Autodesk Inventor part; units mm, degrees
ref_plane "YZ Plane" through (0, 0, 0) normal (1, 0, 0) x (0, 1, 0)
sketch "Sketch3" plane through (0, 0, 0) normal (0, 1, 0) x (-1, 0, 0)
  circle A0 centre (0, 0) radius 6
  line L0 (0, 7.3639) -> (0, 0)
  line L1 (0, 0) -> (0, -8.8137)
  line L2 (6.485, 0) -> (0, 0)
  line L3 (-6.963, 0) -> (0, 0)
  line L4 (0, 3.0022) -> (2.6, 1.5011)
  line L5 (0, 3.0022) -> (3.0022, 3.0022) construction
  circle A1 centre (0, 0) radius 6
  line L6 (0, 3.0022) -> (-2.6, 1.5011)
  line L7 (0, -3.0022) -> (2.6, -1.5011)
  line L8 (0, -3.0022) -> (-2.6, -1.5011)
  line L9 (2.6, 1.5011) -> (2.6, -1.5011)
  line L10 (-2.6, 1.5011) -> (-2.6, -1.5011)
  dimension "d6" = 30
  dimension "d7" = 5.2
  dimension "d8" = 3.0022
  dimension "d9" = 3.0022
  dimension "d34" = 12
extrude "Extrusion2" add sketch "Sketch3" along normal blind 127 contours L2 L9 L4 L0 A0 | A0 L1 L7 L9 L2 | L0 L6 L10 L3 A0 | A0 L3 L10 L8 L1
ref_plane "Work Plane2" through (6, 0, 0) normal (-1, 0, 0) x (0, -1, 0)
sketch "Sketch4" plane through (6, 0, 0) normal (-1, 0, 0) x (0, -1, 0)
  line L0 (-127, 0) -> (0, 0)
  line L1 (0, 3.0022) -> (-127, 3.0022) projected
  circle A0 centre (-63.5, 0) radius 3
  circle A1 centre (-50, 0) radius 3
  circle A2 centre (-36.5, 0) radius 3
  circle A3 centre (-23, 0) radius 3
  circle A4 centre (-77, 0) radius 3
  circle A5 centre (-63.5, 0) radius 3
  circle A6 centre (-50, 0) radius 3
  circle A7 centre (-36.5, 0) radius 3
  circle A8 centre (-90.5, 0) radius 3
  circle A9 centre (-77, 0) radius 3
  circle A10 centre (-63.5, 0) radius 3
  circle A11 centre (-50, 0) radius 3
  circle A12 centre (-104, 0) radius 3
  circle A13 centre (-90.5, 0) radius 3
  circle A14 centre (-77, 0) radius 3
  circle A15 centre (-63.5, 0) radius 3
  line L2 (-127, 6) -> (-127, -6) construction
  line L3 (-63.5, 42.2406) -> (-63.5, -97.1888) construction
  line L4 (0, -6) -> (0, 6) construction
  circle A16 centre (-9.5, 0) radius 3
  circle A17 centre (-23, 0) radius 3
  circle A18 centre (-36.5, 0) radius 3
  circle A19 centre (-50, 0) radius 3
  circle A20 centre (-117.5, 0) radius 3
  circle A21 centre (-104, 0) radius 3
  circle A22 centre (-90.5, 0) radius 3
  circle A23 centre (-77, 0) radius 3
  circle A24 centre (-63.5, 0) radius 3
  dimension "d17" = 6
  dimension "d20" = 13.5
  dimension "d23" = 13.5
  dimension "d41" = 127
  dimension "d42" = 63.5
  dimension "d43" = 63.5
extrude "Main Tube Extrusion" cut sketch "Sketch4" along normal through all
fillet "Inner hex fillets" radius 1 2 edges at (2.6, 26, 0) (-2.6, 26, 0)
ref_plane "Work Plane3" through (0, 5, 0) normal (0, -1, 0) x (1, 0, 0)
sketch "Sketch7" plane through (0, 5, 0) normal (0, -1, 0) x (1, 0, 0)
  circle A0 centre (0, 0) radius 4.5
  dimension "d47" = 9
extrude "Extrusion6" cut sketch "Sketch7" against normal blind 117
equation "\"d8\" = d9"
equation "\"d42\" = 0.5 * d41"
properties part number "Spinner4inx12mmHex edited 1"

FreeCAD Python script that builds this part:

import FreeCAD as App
import Part
import Sketcher
Q = App.Units.Quantity


def edges_at(feature, points):
    """Names of the edges that pass closest to the given points."""
    edges = feature.Shape.Edges
    near = lambda p: min(range(len(edges)), key=lambda i: edges[i].distToShape(Part.Vertex(*p))[0])
    return sorted({f"Edge{near(p) + 1}" for p in points})

doc = App.newDocument("Part")
body = doc.addObject("PartDesign::Body", "Body")

sketch1 = body.newObject("Sketcher::SketchObject", "Sketch")
sketch1.AttachmentSupport = (doc.getObject("XZ_Plane"), [""])
sketch1.MapMode = "FlatFace"
sketch1.addGeometry([
    Part.Circle(App.Vector(0, 0, 0), App.Vector(0, 0, 1), 6),
    Part.LineSegment(App.Vector(-2.6, 1.5011, 0), App.Vector(-2.6, -1.5011, 0)),
    Part.LineSegment(App.Vector(-2.6, -1.5011, 0), App.Vector(0, -3.0022, 0)),
    Part.LineSegment(App.Vector(0, -3.0022, 0), App.Vector(2.6, -1.5011, 0)),
    Part.LineSegment(App.Vector(2.6, -1.5011, 0), App.Vector(2.6, 1.5011, 0)),
    Part.LineSegment(App.Vector(2.6, 1.5011, 0), App.Vector(0, 3.0022, 0)),
    Part.LineSegment(App.Vector(0, 3.0022, 0), App.Vector(-2.6, 1.5011, 0)),
], False)
sketch1.addConstraint([
    Sketcher.Constraint("Coincident", 1, 2, 2, 1),
    Sketcher.Constraint("Coincident", 2, 2, 3, 1),
    Sketcher.Constraint("Coincident", 3, 2, 4, 1),
    Sketcher.Constraint("Coincident", 4, 2, 5, 1),
    Sketcher.Constraint("Coincident", 5, 2, 6, 1),
    Sketcher.Constraint("Coincident", 6, 2, 1, 1),
    Sketcher.Constraint("Vertical", 1),
    Sketcher.Constraint("Vertical", 4),
    Sketcher.Constraint("Coincident", 0, 3, -1, 1),
    Sketcher.Constraint("Symmetric", 1, 2, 4, 2, -1, 1),
    Sketcher.Constraint("Symmetric", 2, 2, 5, 2, -1, 1),
    Sketcher.Constraint("PointOnObject", 2, 2, -2),
    Sketcher.Constraint("Parallel", 3, 6),
    Sketcher.Constraint("Horizontal", 1, 2, 3, 2),
    Sketcher.Constraint("Diameter", 0, 12.0),
    Sketcher.Constraint("Angle", 2, Q("-29.9998 deg")),
    Sketcher.Constraint("DistanceX", 1, 2, 3, 2, 5.2),
    Sketcher.Constraint("DistanceY", 1, 2, 1, 1, 3.0022),
])
pad1 = body.newObject("PartDesign::Pad", "Pad")
pad1.Profile = sketch1
pad1.Length = 127
pad1.Reversed = True

sketch2 = body.newObject("Sketcher::SketchObject", "Sketch001")
sketch2.AttachmentSupport = (doc.getObject("YZ_Plane"), [""])
sketch2.MapMode = "FlatFace"
sketch2.AttachmentOffset = App.Placement(App.Vector(0, 0, 6), App.Rotation())
sketch2.addGeometry([
    Part.Circle(App.Vector(117.5, 0, 0), App.Vector(0, 0, 1), 3),
    Part.Circle(App.Vector(9.5, 0, 0), App.Vector(0, 0, 1), 3),
    Part.Circle(App.Vector(23, 0, 0), App.Vector(0, 0, 1), 3),
    Part.Circle(App.Vector(36.5, 0, 0), App.Vector(0, 0, 1), 3),
    Part.Circle(App.Vector(50, 0, 0), App.Vector(0, 0, 1), 3),
    Part.Circle(App.Vector(63.5, 0, 0), App.Vector(0, 0, 1), 3),
    Part.Circle(App.Vector(77, 0, 0), App.Vector(0, 0, 1), 3),
    Part.Circle(App.Vector(90.5, 0, 0), App.Vector(0, 0, 1), 3),
    Part.Circle(App.Vector(104, 0, 0), App.Vector(0, 0, 1), 3),
], False)
sketch2.addConstraint([
    Sketcher.Constraint("Equal", 0, 1),
    Sketcher.Constraint("Equal", 1, 2),
    Sketcher.Constraint("Equal", 2, 3),
    Sketcher.Constraint("Equal", 3, 4),
    Sketcher.Constraint("Equal", 4, 5),
    Sketcher.Constraint("Equal", 5, 6),
    Sketcher.Constraint("Equal", 6, 7),
    Sketcher.Constraint("Equal", 7, 8),
    Sketcher.Constraint("PointOnObject", 0, 3, -1),
    Sketcher.Constraint("PointOnObject", 1, 3, -1),
    Sketcher.Constraint("PointOnObject", 2, 3, -1),
    Sketcher.Constraint("PointOnObject", 3, 3, -1),
    Sketcher.Constraint("PointOnObject", 4, 3, -1),
    Sketcher.Constraint("PointOnObject", 5, 3, -1),
    Sketcher.Constraint("PointOnObject", 6, 3, -1),
    Sketcher.Constraint("PointOnObject", 7, 3, -1),
    Sketcher.Constraint("PointOnObject", 8, 3, -1),
    Sketcher.Constraint("Diameter", 0, 6.0),
    Sketcher.Constraint("DistanceX", -1, 1, 5, 3, 63.5),
    Sketcher.Constraint("DistanceX", 1, 3, 2, 3, 13.5),
    Sketcher.Constraint("DistanceX", 2, 3, 3, 3, 13.5),
    Sketcher.Constraint("DistanceX", 3, 3, 4, 3, 13.5),
    Sketcher.Constraint("DistanceX", 4, 3, 5, 3, 13.5),
    Sketcher.Constraint("DistanceX", 5, 3, 6, 3, 13.5),
    Sketcher.Constraint("DistanceX", 6, 3, 7, 3, 13.5),
    Sketcher.Constraint("DistanceX", 8, 3, 0, 3, 13.5),
    Sketcher.Constraint("DistanceX", 7, 3, 8, 3, 13.5),
])
pocket1 = body.newObject("PartDesign::Pocket", "Pocket")
pocket1.Profile = sketch2
pocket1.Type = "ThroughAll"
doc.recompute()

fillet = body.newObject("PartDesign::Fillet", "Fillet")
fillet.Base = (pocket1, edges_at(pocket1, [(2.6, 26, 0), (-2.6, 26, 0)]))
fillet.Radius = 1

sketch3 = body.newObject("Sketcher::SketchObject", "Sketch002")
sketch3.AttachmentSupport = (doc.getObject("XZ_Plane"), [""])
sketch3.MapMode = "FlatFace"
sketch3.AttachmentOffset = App.Placement(App.Vector(0, 0, -5), App.Rotation())
sketch3.addGeometry(Part.Circle(App.Vector(0, 0, 0), App.Vector(0, 0, 1), 4.5), False)
sketch3.addConstraint([
    Sketcher.Constraint("Coincident", 0, 3, -1, 1),
    Sketcher.Constraint("Diameter", 0, 9.0),
])
pocket2 = body.newObject("PartDesign::Pocket", "Pocket001")
pocket2.Profile = sketch3
pocket2.Length = 117

doc.recompute()
